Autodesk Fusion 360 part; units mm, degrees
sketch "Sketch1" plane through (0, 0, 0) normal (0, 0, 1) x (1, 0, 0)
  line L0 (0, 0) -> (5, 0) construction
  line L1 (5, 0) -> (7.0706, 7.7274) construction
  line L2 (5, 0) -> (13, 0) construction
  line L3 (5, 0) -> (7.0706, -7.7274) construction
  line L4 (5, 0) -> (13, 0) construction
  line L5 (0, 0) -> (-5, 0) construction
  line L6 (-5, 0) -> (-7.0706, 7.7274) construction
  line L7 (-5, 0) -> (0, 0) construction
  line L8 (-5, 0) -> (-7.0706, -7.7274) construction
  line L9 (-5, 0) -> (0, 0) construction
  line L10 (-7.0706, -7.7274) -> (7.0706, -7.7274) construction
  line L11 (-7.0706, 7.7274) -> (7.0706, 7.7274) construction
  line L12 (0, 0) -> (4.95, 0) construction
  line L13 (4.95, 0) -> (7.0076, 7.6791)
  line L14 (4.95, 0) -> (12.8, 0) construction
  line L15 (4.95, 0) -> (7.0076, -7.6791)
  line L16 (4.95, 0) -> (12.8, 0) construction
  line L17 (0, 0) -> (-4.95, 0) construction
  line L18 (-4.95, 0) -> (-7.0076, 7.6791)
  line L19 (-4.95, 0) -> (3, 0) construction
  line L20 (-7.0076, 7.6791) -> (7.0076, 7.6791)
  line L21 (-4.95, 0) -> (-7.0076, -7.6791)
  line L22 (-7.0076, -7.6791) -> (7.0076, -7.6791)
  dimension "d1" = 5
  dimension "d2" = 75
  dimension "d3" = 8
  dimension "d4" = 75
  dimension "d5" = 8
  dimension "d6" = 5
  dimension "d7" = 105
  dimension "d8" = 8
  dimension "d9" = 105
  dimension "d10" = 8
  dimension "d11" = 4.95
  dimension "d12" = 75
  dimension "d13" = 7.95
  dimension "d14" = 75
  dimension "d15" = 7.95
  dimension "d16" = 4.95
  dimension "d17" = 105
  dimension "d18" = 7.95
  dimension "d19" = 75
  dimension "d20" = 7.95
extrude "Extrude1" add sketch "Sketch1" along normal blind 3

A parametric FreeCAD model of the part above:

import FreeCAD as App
import Part
import Sketcher
Q = App.Units.Quantity


def add_polygon(sketch, points):
    """Adds a closed chain of lines whose ends are joined by coincident constraints."""
    first, n = sketch.GeometryCount, len(points)
    for a, b in zip(points, points[1:] + points[:1]):
        sketch.addGeometry(Part.LineSegment(App.Vector(*a, 0), App.Vector(*b, 0)), False)
    for i in range(n):
        sketch.addConstraint(Sketcher.Constraint("Coincident", first + i, 2, first + (i + 1) % n, 1))

doc = App.newDocument("Part")
body = doc.addObject("PartDesign::Body", "Body")

sketch1 = body.newObject("Sketcher::SketchObject", "Sketch")
sketch1.AttachmentSupport = (doc.getObject("XY_Plane"), [""])
sketch1.MapMode = "FlatFace"
add_polygon(sketch1, [(7.0076, -7.6791), (4.95, 0), (7.0076, 7.6791), (-7.0076, 7.6791), (-4.95, 0), (-7.0076, -7.6791)])
sketch1.addConstraint(Sketcher.Constraint("Horizontal", 2))
sketch1.addConstraint(Sketcher.Constraint("Horizontal", 5))
sketch1.addConstraint(Sketcher.Constraint("Symmetric", 0, 2, 3, 2, -1, 1))
sketch1.addConstraint(Sketcher.Constraint("Symmetric", 1, 2, 4, 2, -1, 1))
sketch1.addConstraint(Sketcher.Constraint("PointOnObject", 0, 2, -1))
sketch1.addConstraint(Sketcher.Constraint("Parallel", 0, 3))
sketch1.addConstraint(Sketcher.Constraint("Vertical", 2, 2, 4, 2))
sketch1.addConstraint(Sketcher.Constraint("Angle", 0, Q("105 deg")))
sketch1.addConstraint(Sketcher.Constraint("Distance", 0, Q("0.313 in")))
sketch1.addConstraint(Sketcher.Constraint("DistanceX", -1, 1, 0, 2, 4.95))
pad1 = body.newObject("PartDesign::Pad", "Pad")
pad1.Profile = sketch1
pad1.Length = Q("0.1181102 in")

doc.recompute()
